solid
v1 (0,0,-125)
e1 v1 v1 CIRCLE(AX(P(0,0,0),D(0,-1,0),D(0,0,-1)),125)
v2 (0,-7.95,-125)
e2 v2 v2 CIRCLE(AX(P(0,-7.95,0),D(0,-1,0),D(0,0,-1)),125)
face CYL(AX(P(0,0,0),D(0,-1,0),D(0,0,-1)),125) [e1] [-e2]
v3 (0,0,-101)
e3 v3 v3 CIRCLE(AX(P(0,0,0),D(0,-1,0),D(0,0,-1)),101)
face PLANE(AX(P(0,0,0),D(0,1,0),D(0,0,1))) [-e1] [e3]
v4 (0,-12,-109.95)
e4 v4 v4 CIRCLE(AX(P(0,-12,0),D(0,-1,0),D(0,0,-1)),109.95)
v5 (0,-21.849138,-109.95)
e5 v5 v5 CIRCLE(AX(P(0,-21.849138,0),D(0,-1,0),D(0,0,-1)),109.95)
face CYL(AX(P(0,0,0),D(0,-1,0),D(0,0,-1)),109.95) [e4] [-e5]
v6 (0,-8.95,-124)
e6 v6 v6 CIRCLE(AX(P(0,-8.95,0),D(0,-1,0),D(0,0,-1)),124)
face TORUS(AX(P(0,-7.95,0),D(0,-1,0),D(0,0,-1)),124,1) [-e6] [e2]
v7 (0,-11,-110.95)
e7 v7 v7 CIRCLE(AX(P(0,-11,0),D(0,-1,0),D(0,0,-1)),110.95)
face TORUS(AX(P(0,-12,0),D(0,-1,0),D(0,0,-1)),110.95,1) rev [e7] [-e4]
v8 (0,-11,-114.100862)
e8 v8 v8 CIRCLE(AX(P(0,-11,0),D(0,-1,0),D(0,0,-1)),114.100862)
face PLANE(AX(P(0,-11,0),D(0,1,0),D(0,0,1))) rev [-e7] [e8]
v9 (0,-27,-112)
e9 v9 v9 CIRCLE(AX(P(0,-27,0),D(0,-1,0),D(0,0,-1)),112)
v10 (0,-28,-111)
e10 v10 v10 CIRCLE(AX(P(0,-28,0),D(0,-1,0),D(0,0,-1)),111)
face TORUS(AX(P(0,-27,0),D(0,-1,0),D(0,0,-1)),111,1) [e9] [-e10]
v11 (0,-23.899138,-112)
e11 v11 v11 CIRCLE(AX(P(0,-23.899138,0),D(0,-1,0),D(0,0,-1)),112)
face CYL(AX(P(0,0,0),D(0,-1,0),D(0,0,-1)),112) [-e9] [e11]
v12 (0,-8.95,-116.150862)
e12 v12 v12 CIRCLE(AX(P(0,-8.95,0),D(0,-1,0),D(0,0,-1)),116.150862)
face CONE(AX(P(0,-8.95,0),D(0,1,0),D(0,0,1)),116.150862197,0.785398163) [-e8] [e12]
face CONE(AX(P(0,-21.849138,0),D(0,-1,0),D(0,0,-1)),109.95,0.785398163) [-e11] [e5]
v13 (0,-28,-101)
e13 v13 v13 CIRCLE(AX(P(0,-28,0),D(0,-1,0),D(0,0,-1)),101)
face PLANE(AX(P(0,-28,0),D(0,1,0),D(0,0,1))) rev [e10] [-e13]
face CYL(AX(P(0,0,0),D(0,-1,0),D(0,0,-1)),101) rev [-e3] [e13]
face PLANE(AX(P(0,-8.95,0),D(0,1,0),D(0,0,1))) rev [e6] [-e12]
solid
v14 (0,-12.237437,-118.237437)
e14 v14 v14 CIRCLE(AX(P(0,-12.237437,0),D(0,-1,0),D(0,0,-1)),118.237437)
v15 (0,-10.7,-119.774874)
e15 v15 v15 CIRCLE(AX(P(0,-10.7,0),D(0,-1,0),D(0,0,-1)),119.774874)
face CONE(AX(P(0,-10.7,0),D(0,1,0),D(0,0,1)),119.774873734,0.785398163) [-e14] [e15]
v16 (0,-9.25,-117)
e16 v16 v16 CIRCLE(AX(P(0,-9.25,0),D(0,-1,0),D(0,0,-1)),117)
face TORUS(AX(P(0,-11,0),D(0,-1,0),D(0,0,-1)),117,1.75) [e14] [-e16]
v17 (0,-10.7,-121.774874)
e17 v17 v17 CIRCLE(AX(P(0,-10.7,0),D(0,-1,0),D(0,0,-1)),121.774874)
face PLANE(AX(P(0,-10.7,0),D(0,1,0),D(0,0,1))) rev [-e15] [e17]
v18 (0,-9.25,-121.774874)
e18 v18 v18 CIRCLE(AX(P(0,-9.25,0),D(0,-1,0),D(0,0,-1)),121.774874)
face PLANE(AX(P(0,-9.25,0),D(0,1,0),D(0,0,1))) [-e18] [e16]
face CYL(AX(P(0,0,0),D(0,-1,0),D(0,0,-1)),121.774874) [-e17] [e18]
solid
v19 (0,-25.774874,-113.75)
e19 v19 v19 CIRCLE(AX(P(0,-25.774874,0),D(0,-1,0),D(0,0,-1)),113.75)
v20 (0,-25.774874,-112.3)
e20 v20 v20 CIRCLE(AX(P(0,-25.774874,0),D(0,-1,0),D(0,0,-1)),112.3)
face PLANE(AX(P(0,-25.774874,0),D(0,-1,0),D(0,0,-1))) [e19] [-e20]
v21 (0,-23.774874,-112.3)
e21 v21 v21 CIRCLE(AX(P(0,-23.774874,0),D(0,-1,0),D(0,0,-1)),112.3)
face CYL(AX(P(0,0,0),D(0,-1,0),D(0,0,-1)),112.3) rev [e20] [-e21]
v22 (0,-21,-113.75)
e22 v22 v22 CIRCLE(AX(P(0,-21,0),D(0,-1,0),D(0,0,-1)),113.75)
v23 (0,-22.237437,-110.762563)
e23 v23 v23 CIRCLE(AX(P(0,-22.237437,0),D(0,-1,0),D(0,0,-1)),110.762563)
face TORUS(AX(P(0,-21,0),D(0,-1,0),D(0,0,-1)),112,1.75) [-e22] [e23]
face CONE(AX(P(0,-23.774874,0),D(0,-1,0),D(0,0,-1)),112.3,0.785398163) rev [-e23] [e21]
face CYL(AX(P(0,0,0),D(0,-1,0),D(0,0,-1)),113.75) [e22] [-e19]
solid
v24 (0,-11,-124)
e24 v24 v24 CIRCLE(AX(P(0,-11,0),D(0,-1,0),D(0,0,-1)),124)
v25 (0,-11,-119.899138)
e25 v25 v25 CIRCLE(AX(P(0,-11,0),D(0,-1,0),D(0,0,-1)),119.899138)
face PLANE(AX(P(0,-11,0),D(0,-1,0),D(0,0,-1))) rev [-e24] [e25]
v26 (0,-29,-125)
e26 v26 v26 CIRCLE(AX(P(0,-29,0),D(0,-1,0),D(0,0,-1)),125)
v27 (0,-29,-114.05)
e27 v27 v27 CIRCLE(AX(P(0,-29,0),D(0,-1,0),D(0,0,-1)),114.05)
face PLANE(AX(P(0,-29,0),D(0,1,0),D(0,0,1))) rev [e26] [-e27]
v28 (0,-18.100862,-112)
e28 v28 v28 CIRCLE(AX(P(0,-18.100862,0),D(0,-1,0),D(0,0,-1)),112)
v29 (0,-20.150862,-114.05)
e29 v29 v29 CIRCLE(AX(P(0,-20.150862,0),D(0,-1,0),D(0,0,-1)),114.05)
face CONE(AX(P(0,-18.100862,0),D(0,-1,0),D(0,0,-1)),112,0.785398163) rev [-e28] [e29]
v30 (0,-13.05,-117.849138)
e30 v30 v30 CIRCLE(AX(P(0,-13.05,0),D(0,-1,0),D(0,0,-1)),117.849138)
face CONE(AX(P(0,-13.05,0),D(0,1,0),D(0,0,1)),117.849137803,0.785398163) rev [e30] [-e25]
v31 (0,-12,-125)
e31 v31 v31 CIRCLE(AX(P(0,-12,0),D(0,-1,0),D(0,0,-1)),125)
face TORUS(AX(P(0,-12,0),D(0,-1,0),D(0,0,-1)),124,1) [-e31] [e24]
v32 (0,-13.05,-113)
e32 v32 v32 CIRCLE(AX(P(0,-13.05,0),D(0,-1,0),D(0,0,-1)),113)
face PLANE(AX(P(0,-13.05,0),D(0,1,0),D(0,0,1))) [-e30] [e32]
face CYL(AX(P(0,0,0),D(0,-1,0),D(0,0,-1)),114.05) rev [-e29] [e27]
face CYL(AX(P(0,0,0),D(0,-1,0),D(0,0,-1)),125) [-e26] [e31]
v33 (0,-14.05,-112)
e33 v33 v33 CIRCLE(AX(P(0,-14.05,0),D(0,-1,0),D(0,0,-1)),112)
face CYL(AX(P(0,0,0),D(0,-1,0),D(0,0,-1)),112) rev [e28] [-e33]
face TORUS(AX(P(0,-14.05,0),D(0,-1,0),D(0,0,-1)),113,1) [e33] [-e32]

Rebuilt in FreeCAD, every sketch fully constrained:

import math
import FreeCAD as App
import Part
import Sketcher
from FreeCAD import Vector
Q = App.Units.Quantity

doc = App.newDocument("Part")
body = doc.addObject("PartDesign::Body", "Body")

sketch1 = body.newObject("Sketcher::SketchObject", "Sketch")
sketch1.AttachmentSupport = (doc.getObject("XY_Plane"), [""])
sketch1.MapMode = "FlatFace"
sketch1.addGeometry(Part.LineSegment(Vector(-119.899138, -11, 0), Vector(-124, -11, 0)), False)
sketch1.addGeometry(Part.ArcOfCircle(Part.Circle(Vector(-124, -12, 0), Vector(0, 0, 1), 1), math.radians(90), math.radians(180)), False)
sketch1.addGeometry(Part.LineSegment(Vector(-125, -12, 0), Vector(-125, -29, 0)), False)
sketch1.addGeometry(Part.LineSegment(Vector(-125, -29, 0), Vector(-114.05, -29, 0)), False)
sketch1.addGeometry(Part.LineSegment(Vector(-114.05, -29, 0), Vector(-114.05, -20.150862, 0)), False)
sketch1.addGeometry(Part.LineSegment(Vector(-114.05, -20.150862, 0), Vector(-112, -18.100862, 0)), False)
sketch1.addGeometry(Part.LineSegment(Vector(-112, -18.100862, 0), Vector(-112, -14.05, 0)), False)
sketch1.addGeometry(Part.ArcOfCircle(Part.Circle(Vector(-113, -14.05, 0), Vector(0, 0, 1), 1), math.radians(0), math.radians(90)), False)
sketch1.addGeometry(Part.LineSegment(Vector(-113, -13.05, 0), Vector(-117.849138, -13.05, 0)), False)
sketch1.addGeometry(Part.LineSegment(Vector(-117.849138, -13.05, 0), Vector(-119.899138, -11, 0)), False)
sketch1.addConstraint(Sketcher.Constraint("Tangent", 0, 2, 1, 1))
sketch1.addConstraint(Sketcher.Constraint("Tangent", 1, 2, 2, 1))
sketch1.addConstraint(Sketcher.Constraint("Coincident", 2, 2, 3, 1))
sketch1.addConstraint(Sketcher.Constraint("Coincident", 3, 2, 4, 1))
sketch1.addConstraint(Sketcher.Constraint("Coincident", 4, 2, 5, 1))
sketch1.addConstraint(Sketcher.Constraint("Coincident", 5, 2, 6, 1))
sketch1.addConstraint(Sketcher.Constraint("Tangent", 6, 2, 7, 1))
sketch1.addConstraint(Sketcher.Constraint("Tangent", 7, 2, 8, 1))
sketch1.addConstraint(Sketcher.Constraint("Coincident", 8, 2, 9, 1))
sketch1.addConstraint(Sketcher.Constraint("Coincident", 9, 2, 0, 1))
sketch1.addConstraint(Sketcher.Constraint("Horizontal", 0))
sketch1.addConstraint(Sketcher.Constraint("Vertical", 2))
sketch1.addConstraint(Sketcher.Constraint("Horizontal", 3))
sketch1.addConstraint(Sketcher.Constraint("Vertical", 4))
sketch1.addConstraint(Sketcher.Constraint("Vertical", 6))
sketch1.addConstraint(Sketcher.Constraint("Horizontal", 8))
sketch1.addConstraint(Sketcher.Constraint("Equal", 1, 7))
sketch1.addConstraint(Sketcher.Constraint("Perpendicular", 5, 9))
sketch1.addConstraint(Sketcher.Constraint("Equal", 5, 9))
sketch1.addConstraint(Sketcher.Constraint("Radius", 1, 1.0))
sketch1.addConstraint(Sketcher.Constraint("DistanceY", 2, 2, 2, 1, 17.0))
sketch1.addConstraint(Sketcher.Constraint("Angle", 5, Q("45 deg")))
sketch1.addConstraint(Sketcher.Constraint("DistanceX", 1, 3, -1, 1, 124.0))
sketch1.addConstraint(Sketcher.Constraint("DistanceY", 1, 3, -1, 1, 12.0))
sketch1.addConstraint(Sketcher.Constraint("DistanceX", 7, 3, -1, 1, 113.0))
sketch1.addConstraint(Sketcher.Constraint("DistanceX", 3, 1, 3, 2, 10.95))
sketch1.addConstraint(Sketcher.Constraint("DistanceX", 0, 2, 0, 1, 4.100862))
sketch1.addConstraint(Sketcher.Constraint("DistanceY", 4, 1, 4, 2, 8.849138))
revolution = body.newObject("PartDesign::Revolution", "Revolution")
revolution.Profile = sketch1
revolution.ReferenceAxis = (sketch1, ["V_Axis"])
revolution.Angle = 360
body2 = doc.addObject("PartDesign::Body", "Body001")

sketch2 = body2.newObject("Sketcher::SketchObject", "Sketch001")
sketch2.AttachmentSupport = (doc.getObject("XY_Plane001"), [""])
sketch2.MapMode = "FlatFace"
sketch2.addGeometry(Part.ArcOfCircle(Part.Circle(Vector(-117, -11, 0), Vector(0, 0, 1), 1.75), math.radians(-135), math.radians(90)), False)
sketch2.addGeometry(Part.LineSegment(Vector(-117, -9.25, 0), Vector(-121.774874, -9.25, 0)), False)
sketch2.addGeometry(Part.LineSegment(Vector(-121.774874, -9.25, 0), Vector(-121.774874, -10.7, 0)), False)
sketch2.addGeometry(Part.LineSegment(Vector(-121.774874, -10.7, 0), Vector(-119.774874, -10.7, 0)), False)
sketch2.addGeometry(Part.LineSegment(Vector(-119.774874, -10.7, 0), Vector(-118.237437, -12.237437, 0)), False)
sketch2.addConstraint(Sketcher.Constraint("Tangent", 0, 2, 1, 1))
sketch2.addConstraint(Sketcher.Constraint("Coincident", 1, 2, 2, 1))
sketch2.addConstraint(Sketcher.Constraint("Coincident", 2, 2, 3, 1))
sketch2.addConstraint(Sketcher.Constraint("Coincident", 3, 2, 4, 1))
sketch2.addConstraint(Sketcher.Constraint("Tangent", 4, 2, 0, 1))
sketch2.addConstraint(Sketcher.Constraint("Horizontal", 1))
sketch2.addConstraint(Sketcher.Constraint("Vertical", 2))
sketch2.addConstraint(Sketcher.Constraint("Horizontal", 3))
sketch2.addConstraint(Sketcher.Constraint("DistanceX", 3, 1, 3, 2, 2.0))
sketch2.addConstraint(Sketcher.Constraint("Angle", 4, Q("-45 deg")))
sketch2.addConstraint(Sketcher.Constraint("Radius", 0, 1.75))
sketch2.addConstraint(Sketcher.Constraint("DistanceX", 0, 3, -1, 1, 117.0))
sketch2.addConstraint(Sketcher.Constraint("DistanceY", 0, 3, -1, 1, 11.0))
sketch2.addConstraint(Sketcher.Constraint("DistanceY", 2, 2, 2, 1, 1.45))
revolution2 = body2.newObject("PartDesign::Revolution", "Revolution001")
revolution2.Profile = sketch2
revolution2.ReferenceAxis = (sketch2, ["V_Axis"])
revolution2.Angle = 360
body3 = doc.addObject("PartDesign::Body", "Body002")

sketch3 = body3.newObject("Sketcher::SketchObject", "Sketch002")
sketch3.AttachmentSupport = (doc.getObject("XY_Plane002"), [""])
sketch3.MapMode = "FlatFace"
sketch3.addGeometry(Part.LineSegment(Vector(-113.75, -21, 0), Vector(-113.75, -25.774874, 0)), False)
sketch3.addGeometry(Part.LineSegment(Vector(-113.75, -25.774874, 0), Vector(-112.3, -25.774874, 0)), False)
sketch3.addGeometry(Part.LineSegment(Vector(-112.3, -25.774874, 0), Vector(-112.3, -23.774874, 0)), False)
sketch3.addGeometry(Part.LineSegment(Vector(-112.3, -23.774874, 0), Vector(-110.762563, -22.237437, 0)), False)
sketch3.addGeometry(Part.ArcOfCircle(Part.Circle(Vector(-112, -21, 0), Vector(0, 0, 1), 1.75), math.radians(-45), math.radians(180)), False)
sketch3.addConstraint(Sketcher.Constraint("Coincident", 0, 2, 1, 1))
sketch3.addConstraint(Sketcher.Constraint("Coincident", 1, 2, 2, 1))
sketch3.addConstraint(Sketcher.Constraint("Coincident", 2, 2, 3, 1))
sketch3.addConstraint(Sketcher.Constraint("Tangent", 3, 2, 4, 1))
sketch3.addConstraint(Sketcher.Constraint("Tangent", 4, 2, 0, 1))
sketch3.addConstraint(Sketcher.Constraint("Vertical", 0))
sketch3.addConstraint(Sketcher.Constraint("Horizontal", 1))
sketch3.addConstraint(Sketcher.Constraint("Vertical", 2))
sketch3.addConstraint(Sketcher.Constraint("DistanceY", 2, 1, 2, 2, 2.0))
sketch3.addConstraint(Sketcher.Constraint("Angle", 3, Q("45 deg")))
sketch3.addConstraint(Sketcher.Constraint("Radius", 4, 1.75))
sketch3.addConstraint(Sketcher.Constraint("DistanceX", 4, 3, -1, 1, 112.0))
sketch3.addConstraint(Sketcher.Constraint("DistanceY", 4, 3, -1, 1, 21.0))
sketch3.addConstraint(Sketcher.Constraint("DistanceX", 1, 1, 1, 2, 1.45))
revolution3 = body3.newObject("PartDesign::Revolution", "Revolution002")
revolution3.Profile = sketch3
revolution3.ReferenceAxis = (sketch3, ["V_Axis"])
revolution3.Angle = 360
body4 = doc.addObject("PartDesign::Body", "Body003")

sketch4 = body4.newObject("Sketcher::SketchObject", "Sketch003")
sketch4.AttachmentSupport = (doc.getObject("XY_Plane003"), [""])
sketch4.MapMode = "FlatFace"
sketch4.addGeometry(Part.ArcOfCircle(Part.Circle(Vector(-124, -7.95, 0), Vector(0, 0, 1), 1), math.radians(-180), math.radians(-90)), False)
sketch4.addGeometry(Part.LineSegment(Vector(-124, -8.95, 0), Vector(-116.150862, -8.95, 0)), False)
sketch4.addGeometry(Part.LineSegment(Vector(-116.150862, -8.95, 0), Vector(-114.100862, -11, 0)), False)
sketch4.addGeometry(Part.LineSegment(Vector(-114.100862, -11, 0), Vector(-110.95, -11, 0)), False)
sketch4.addGeometry(Part.ArcOfCircle(Part.Circle(Vector(-110.95, -12, 0), Vector(0, 0, 1), 1), math.radians(0), math.radians(90)), False)
sketch4.addGeometry(Part.LineSegment(Vector(-109.95, -12, 0), Vector(-109.95, -16.924569, 0)), False)
sketch4.addGeometry(Part.LineSegment(Vector(-109.95, -16.924569, 0), Vector(-101, -16.924569, 0)), False)
sketch4.addGeometry(Part.LineSegment(Vector(-101, -16.924569, 0), Vector(-101, 0, 0)), False)
sketch4.addGeometry(Part.LineSegment(Vector(-101, 0, 0), Vector(-125, 0, 0)), False)
sketch4.addGeometry(Part.LineSegment(Vector(-125, 0, 0), Vector(-125, -7.95, 0)), False)
sketch4.addConstraint(Sketcher.Constraint("Tangent", 0, 2, 1, 1))
sketch4.addConstraint(Sketcher.Constraint("Coincident", 1, 2, 2, 1))
sketch4.addConstraint(Sketcher.Constraint("Coincident", 2, 2, 3, 1))
sketch4.addConstraint(Sketcher.Constraint("Tangent", 3, 2, 4, 2))
sketch4.addConstraint(Sketcher.Constraint("Tangent", 4, 1, 5, 1))
sketch4.addConstraint(Sketcher.Constraint("Coincident", 5, 2, 6, 1))
sketch4.addConstraint(Sketcher.Constraint("Coincident", 6, 2, 7, 1))
sketch4.addConstraint(Sketcher.Constraint("Coincident", 7, 2, 8, 1))
sketch4.addConstraint(Sketcher.Constraint("Coincident", 8, 2, 9, 1))
sketch4.addConstraint(Sketcher.Constraint("Tangent", 9, 2, 0, 1))
sketch4.addConstraint(Sketcher.Constraint("Horizontal", 1))
sketch4.addConstraint(Sketcher.Constraint("Horizontal", 3))
sketch4.addConstraint(Sketcher.Constraint("Vertical", 5))
sketch4.addConstraint(Sketcher.Constraint("Horizontal", 6))
sketch4.addConstraint(Sketcher.Constraint("Vertical", 7))
sketch4.addConstraint(Sketcher.Constraint("Horizontal", 8))
sketch4.addConstraint(Sketcher.Constraint("Vertical", 9))
sketch4.addConstraint(Sketcher.Constraint("Equal", 0, 4))
sketch4.addConstraint(Sketcher.Constraint("PointOnObject", 7, 2, -1))
sketch4.addConstraint(Sketcher.Constraint("Radius", 0, 1.0))
sketch4.addConstraint(Sketcher.Constraint("DistanceX", 8, 2, 8, 1, 24.0))
sketch4.addConstraint(Sketcher.Constraint("Angle", 2, Q("-45 deg")))
sketch4.addConstraint(Sketcher.Constraint("DistanceX", 0, 3, -1, 1, 124.0))
sketch4.addConstraint(Sketcher.Constraint("DistanceY", 4, 3, -1, 1, 12.0))
sketch4.addConstraint(Sketcher.Constraint("DistanceX", 6, 1, 6, 2, 8.95))
sketch4.addConstraint(Sketcher.Constraint("DistanceY", 9, 2, 9, 1, 7.95))
sketch4.addConstraint(Sketcher.Constraint("DistanceY", 5, 2, 5, 1, 4.924569))
sketch4.addConstraint(Sketcher.Constraint("DistanceX", 1, 1, 1, 2, 7.849138))
revolution4 = body4.newObject("PartDesign::Revolution", "Revolution003")
revolution4.Profile = sketch4
revolution4.ReferenceAxis = (sketch4, ["V_Axis"])
revolution4.Angle = 360

sketch5 = body4.newObject("Sketcher::SketchObject", "Sketch004")
sketch5.AttachmentSupport = (doc.getObject("XY_Plane003"), [""])
sketch5.MapMode = "FlatFace"
sketch5.addGeometry(Part.LineSegment(Vector(-112, -23.899138, 0), Vector(-112, -27, 0)), False)
sketch5.addGeometry(Part.ArcOfCircle(Part.Circle(Vector(-111, -27, 0), Vector(0, 0, 1), 1), math.radians(-180), math.radians(-90)), False)
sketch5.addGeometry(Part.LineSegment(Vector(-111, -28, 0), Vector(-101, -28, 0)), False)
sketch5.addGeometry(Part.LineSegment(Vector(-101, -28, 0), Vector(-101, -16.924569, 0)), False)
sketch5.addGeometry(Part.LineSegment(Vector(-101, -16.924569, 0), Vector(-109.95, -16.924569, 0)), False)
sketch5.addGeometry(Part.LineSegment(Vector(-109.95, -16.924569, 0), Vector(-109.95, -21.849138, 0)), False)
sketch5.addGeometry(Part.LineSegment(Vector(-109.95, -21.849138, 0), Vector(-112, -23.899138, 0)), False)
sketch5.addConstraint(Sketcher.Constraint("Tangent", 0, 2, 1, 1))
sketch5.addConstraint(Sketcher.Constraint("Tangent", 1, 2, 2, 1))
sketch5.addConstraint(Sketcher.Constraint("Coincident", 2, 2, 3, 1))
sketch5.addConstraint(Sketcher.Constraint("Coincident", 3, 2, 4, 1))
sketch5.addConstraint(Sketcher.Constraint("Coincident", 4, 2, 5, 1))
sketch5.addConstraint(Sketcher.Constraint("Coincident", 5, 2, 6, 1))
sketch5.addConstraint(Sketcher.Constraint("Coincident", 6, 2, 0, 1))
sketch5.addConstraint(Sketcher.Constraint("Vertical", 0))
sketch5.addConstraint(Sketcher.Constraint("Horizontal", 2))
sketch5.addConstraint(Sketcher.Constraint("Vertical", 3))
sketch5.addConstraint(Sketcher.Constraint("Horizontal", 4))
sketch5.addConstraint(Sketcher.Constraint("Vertical", 5))
sketch5.addConstraint(Sketcher.Constraint("Radius", 1, 1.0))
sketch5.addConstraint(Sketcher.Constraint("DistanceX", 2, 1, 2, 2, 10.0))
sketch5.addConstraint(Sketcher.Constraint("Angle", 6, Q("-135 deg")))
sketch5.addConstraint(Sketcher.Constraint("DistanceX", 1, 3, -1, 1, 111.0))
sketch5.addConstraint(Sketcher.Constraint("DistanceY", 1, 3, -1, 1, 27.0))
sketch5.addConstraint(Sketcher.Constraint("DistanceX", 4, 2, 4, 1, 8.95))
sketch5.addConstraint(Sketcher.Constraint("DistanceY", 3, 1, 3, 2, 11.075431))
sketch5.addConstraint(Sketcher.Constraint("DistanceY", 5, 2, 5, 1, 4.924569))
revolution5 = body4.newObject("PartDesign::Revolution", "Revolution004")
revolution5.Profile = sketch5
revolution5.ReferenceAxis = (sketch5, ["V_Axis"])
revolution5.Angle = 360

doc.recompute()
